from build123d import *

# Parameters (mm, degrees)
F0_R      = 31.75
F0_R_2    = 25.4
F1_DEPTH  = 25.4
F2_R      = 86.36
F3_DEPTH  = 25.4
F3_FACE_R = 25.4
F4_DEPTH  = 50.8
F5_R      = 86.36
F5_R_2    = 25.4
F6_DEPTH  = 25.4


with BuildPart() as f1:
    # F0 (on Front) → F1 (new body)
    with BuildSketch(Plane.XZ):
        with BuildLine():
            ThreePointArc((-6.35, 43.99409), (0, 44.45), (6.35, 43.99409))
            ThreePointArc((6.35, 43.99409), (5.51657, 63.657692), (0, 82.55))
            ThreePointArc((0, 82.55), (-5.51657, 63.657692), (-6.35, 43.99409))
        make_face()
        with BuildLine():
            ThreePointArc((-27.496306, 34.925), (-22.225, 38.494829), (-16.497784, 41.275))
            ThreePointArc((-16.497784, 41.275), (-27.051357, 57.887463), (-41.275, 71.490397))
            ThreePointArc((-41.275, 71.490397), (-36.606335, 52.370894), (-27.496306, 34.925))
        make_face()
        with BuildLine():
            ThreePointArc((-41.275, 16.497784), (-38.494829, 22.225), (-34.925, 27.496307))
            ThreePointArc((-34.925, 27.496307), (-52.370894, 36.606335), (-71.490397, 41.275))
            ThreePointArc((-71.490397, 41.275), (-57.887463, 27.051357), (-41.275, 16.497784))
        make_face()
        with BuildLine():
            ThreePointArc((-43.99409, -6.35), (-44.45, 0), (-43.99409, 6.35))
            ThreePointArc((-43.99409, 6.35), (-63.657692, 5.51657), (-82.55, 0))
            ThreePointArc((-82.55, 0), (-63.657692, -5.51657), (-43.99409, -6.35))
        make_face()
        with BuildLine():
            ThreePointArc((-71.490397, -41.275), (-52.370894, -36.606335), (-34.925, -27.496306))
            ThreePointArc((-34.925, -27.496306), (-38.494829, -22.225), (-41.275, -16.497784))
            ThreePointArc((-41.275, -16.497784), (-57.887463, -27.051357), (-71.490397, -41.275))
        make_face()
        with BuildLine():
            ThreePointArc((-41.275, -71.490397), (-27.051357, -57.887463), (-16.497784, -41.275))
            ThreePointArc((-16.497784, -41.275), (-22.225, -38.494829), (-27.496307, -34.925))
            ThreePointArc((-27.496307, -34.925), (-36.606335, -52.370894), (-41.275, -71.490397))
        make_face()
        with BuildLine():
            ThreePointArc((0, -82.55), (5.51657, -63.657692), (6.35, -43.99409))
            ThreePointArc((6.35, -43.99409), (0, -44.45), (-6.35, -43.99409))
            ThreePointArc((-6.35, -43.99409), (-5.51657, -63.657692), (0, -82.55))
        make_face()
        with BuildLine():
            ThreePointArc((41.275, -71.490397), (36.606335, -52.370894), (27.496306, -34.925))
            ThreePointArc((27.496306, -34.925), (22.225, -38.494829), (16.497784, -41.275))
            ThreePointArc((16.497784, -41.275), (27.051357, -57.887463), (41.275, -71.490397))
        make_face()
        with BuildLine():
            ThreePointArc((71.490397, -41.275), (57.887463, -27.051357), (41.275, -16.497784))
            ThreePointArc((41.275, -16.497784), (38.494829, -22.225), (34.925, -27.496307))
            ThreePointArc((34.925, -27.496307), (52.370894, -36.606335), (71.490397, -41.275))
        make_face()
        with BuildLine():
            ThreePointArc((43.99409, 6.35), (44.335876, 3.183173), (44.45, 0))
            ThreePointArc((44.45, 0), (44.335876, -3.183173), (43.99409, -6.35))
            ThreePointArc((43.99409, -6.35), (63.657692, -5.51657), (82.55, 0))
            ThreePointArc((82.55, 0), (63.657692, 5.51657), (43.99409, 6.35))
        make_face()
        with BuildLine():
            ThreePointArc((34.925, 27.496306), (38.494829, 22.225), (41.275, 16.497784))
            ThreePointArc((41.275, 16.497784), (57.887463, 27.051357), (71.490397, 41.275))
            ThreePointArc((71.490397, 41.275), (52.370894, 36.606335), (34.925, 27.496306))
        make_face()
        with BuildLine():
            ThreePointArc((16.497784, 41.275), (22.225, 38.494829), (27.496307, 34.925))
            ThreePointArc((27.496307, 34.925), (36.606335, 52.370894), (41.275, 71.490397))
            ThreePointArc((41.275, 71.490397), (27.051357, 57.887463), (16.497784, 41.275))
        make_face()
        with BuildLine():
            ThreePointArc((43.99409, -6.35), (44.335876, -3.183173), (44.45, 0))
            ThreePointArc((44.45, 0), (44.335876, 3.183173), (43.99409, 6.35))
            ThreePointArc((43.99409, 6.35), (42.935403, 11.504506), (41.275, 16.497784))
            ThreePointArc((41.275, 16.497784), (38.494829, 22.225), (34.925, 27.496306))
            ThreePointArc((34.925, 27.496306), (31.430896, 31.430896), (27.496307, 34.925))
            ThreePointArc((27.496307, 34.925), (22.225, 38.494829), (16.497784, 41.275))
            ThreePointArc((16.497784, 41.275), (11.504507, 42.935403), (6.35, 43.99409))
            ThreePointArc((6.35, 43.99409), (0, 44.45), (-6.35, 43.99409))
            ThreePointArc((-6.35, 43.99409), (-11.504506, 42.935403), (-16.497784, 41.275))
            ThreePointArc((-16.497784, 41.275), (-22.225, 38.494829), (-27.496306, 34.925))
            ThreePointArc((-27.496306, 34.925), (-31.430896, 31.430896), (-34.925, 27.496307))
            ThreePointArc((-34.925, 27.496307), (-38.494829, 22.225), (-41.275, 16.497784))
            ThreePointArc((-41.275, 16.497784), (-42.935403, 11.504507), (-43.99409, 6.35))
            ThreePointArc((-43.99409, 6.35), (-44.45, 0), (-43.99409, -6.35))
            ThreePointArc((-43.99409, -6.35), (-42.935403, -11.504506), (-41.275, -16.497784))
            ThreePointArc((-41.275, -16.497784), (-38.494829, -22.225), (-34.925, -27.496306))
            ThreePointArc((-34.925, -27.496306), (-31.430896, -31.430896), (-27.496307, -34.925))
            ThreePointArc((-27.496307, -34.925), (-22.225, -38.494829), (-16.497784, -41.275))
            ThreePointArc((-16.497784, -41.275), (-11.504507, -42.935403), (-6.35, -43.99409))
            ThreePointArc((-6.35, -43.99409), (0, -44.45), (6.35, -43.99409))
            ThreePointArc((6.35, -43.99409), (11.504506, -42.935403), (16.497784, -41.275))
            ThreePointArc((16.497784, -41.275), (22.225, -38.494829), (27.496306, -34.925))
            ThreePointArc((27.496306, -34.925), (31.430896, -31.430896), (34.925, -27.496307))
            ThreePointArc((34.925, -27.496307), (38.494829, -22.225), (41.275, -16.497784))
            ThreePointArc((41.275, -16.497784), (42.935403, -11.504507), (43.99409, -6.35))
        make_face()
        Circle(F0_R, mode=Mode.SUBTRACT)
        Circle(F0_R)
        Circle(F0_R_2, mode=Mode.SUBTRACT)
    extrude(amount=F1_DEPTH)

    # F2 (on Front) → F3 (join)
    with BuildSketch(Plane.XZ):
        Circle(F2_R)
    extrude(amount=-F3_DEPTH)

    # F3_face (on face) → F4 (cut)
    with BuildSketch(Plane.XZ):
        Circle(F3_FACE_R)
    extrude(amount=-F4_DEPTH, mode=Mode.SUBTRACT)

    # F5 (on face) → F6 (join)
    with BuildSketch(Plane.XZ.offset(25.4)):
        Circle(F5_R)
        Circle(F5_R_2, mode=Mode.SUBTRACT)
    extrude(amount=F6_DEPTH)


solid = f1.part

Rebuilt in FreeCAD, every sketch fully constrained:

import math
import FreeCAD as App
import Part
import Sketcher
Q = App.Units.Quantity

doc = App.newDocument("Part")
body = doc.addObject("PartDesign::Body", "Body")

# Sketch on XZ plane
sketch1 = doc.addObject("Sketcher::SketchObject", "Sketch")
body.addObject(sketch1)
sketch1.AttachmentSupport = (doc.XZ_Plane, [""])
sketch1.MapMode = "FlatFace"
sketch1.addGeometry([
    Part.ArcOfCircle(Part.Circle(App.Vector(-75.011131, 50.39511, 0), App.Vector(0, 0, 1), 81.61254), math.radians(-4.498433), math.radians(23.203277)),  # 0
    Part.ArcOfCircle(Part.Circle(App.Vector(75.011131, 50.39511, 0), App.Vector(0, 0, 1), 81.61254), math.radians(156.796723), math.radians(184.498433)),  # 1
    Part.ArcOfCircle(Part.Circle(App.Vector(-0.000007, 0.000016, 0), App.Vector(0, 0, 1), 44.449983), math.radians(98.213205), math.radians(111.786789)),  # 2
    Part.ArcOfCircle(Part.Circle(App.Vector(-90.159121, 6.137863, 0), App.Vector(0, 0, 1), 81.612566), math.radians(25.501572), math.radians(53.203272)),  # 3
    Part.ArcOfCircle(Part.Circle(App.Vector(39.764011, 81.14902, 0), App.Vector(0, 0, 1), 81.612562), math.radians(-173.203272), math.radians(-145.501571)),  # 4
    Part.ArcOfCircle(Part.Circle(App.Vector(0.000054, -0.000058, 0), App.Vector(0, 0, 1), 44.450079), math.radians(128.213219), math.radians(141.786773)),  # 5
    Part.ArcOfCircle(Part.Circle(App.Vector(-81.149024, -39.764025, 0), App.Vector(0, 0, 1), 81.612576), math.radians(55.501575), math.radians(83.203271)),  # 6
    Part.ArcOfCircle(Part.Circle(App.Vector(-6.137863, 90.159121, 0), App.Vector(0, 0, 1), 81.612566), math.radians(-143.203272), math.radians(-115.501572)),  # 7
    Part.ArcOfCircle(Part.Circle(App.Vector(-0.000052, 0.000016, 0), App.Vector(0, 0, 1), 44.449946), math.radians(158.213205), math.radians(171.7868)),  # 8
    Part.ArcOfCircle(Part.Circle(App.Vector(-50.39511, -75.011131, 0), App.Vector(0, 0, 1), 81.61254), math.radians(85.501567), math.radians(113.203277)),  # 9
    Part.ArcOfCircle(Part.Circle(App.Vector(-50.39511, 75.011131, 0), App.Vector(0, 0, 1), 81.61254), math.radians(-113.203277), math.radians(-85.501567)),  # 10
    Part.ArcOfCircle(Part.Circle(App.Vector(-0.000016, -0.000007, 0), App.Vector(0, 0, 1), 44.449983), math.radians(-171.786795), math.radians(-158.213211)),  # 11
    Part.ArcOfCircle(Part.Circle(App.Vector(-6.137863, -90.159121, 0), App.Vector(0, 0, 1), 81.612566), math.radians(115.501572), math.radians(143.203272)),  # 12
    Part.ArcOfCircle(Part.Circle(App.Vector(-81.14902, 39.764011, 0), App.Vector(0, 0, 1), 81.612562), math.radians(-83.203272), math.radians(-55.501571)),  # 13
    Part.ArcOfCircle(Part.Circle(App.Vector(0.000058, 0.000054, 0), App.Vector(0, 0, 1), 44.450079), math.radians(-141.786781), math.radians(-128.213227)),  # 14
    Part.ArcOfCircle(Part.Circle(App.Vector(39.764025, -81.149024, 0), App.Vector(0, 0, 1), 81.612576), math.radians(145.501575), math.radians(173.203271)),  # 15
    Part.ArcOfCircle(Part.Circle(App.Vector(-90.159121, -6.137863, 0), App.Vector(0, 0, 1), 81.612566), math.radians(-53.203272), math.radians(-25.501572)),  # 16
    Part.ArcOfCircle(Part.Circle(App.Vector(-0.000016, -0.000052, 0), App.Vector(0, 0, 1), 44.449946), math.radians(-111.786795), math.radians(-98.2132)),  # 17
    Part.ArcOfCircle(Part.Circle(App.Vector(75.011131, -50.39511, 0), App.Vector(0, 0, 1), 81.61254), math.radians(175.501567), math.radians(203.203277)),  # 18
    Part.ArcOfCircle(Part.Circle(App.Vector(-75.011131, -50.39511, 0), App.Vector(0, 0, 1), 81.61254), math.radians(-23.203277), math.radians(4.498433)),  # 19
    Part.ArcOfCircle(Part.Circle(App.Vector(0.000007, -0.000016, 0), App.Vector(0, 0, 1), 44.449983), math.radians(-81.786795), math.radians(-68.213211)),  # 20
    Part.ArcOfCircle(Part.Circle(App.Vector(90.159121, -6.137863, 0), App.Vector(0, 0, 1), 81.612566), math.radians(-154.498428), math.radians(-126.796728)),  # 21
    Part.ArcOfCircle(Part.Circle(App.Vector(-39.764011, -81.14902, 0), App.Vector(0, 0, 1), 81.612562), math.radians(6.796728), math.radians(34.498429)),  # 22
    Part.ArcOfCircle(Part.Circle(App.Vector(-0.000054, 0.000058, 0), App.Vector(0, 0, 1), 44.450079), math.radians(-51.786781), math.radians(-38.213227)),  # 23
    Part.ArcOfCircle(Part.Circle(App.Vector(81.149024, 39.764025, 0), App.Vector(0, 0, 1), 81.612576), math.radians(-124.498425), math.radians(-96.796729)),  # 24
    Part.ArcOfCircle(Part.Circle(App.Vector(6.137863, -90.159121, 0), App.Vector(0, 0, 1), 81.612566), math.radians(36.796728), math.radians(64.498428)),  # 25
    Part.ArcOfCircle(Part.Circle(App.Vector(0.000052, -0.000016, 0), App.Vector(0, 0, 1), 44.449946), math.radians(-21.786795), math.radians(-8.2132)),  # 26
    Part.ArcOfCircle(Part.Circle(App.Vector(50.39511, 75.011131, 0), App.Vector(0, 0, 1), 81.61254), math.radians(-94.498433), math.radians(-66.796723)),  # 27
    Part.ArcOfCircle(Part.Circle(App.Vector(50.39511, -75.011131, 0), App.Vector(0, 0, 1), 81.61254), math.radians(66.796723), math.radians(94.498433)),  # 28
    Part.ArcOfCircle(Part.Circle(App.Vector(0.000016, 0.000007, 0), App.Vector(0, 0, 1), 44.449983), math.radians(8.213205), math.radians(21.786789)),  # 29
    Part.ArcOfCircle(Part.Circle(App.Vector(6.137863, 90.159121, 0), App.Vector(0, 0, 1), 81.612566), math.radians(-64.498428), math.radians(-36.796728)),  # 30
    Part.ArcOfCircle(Part.Circle(App.Vector(81.14902, -39.764011, 0), App.Vector(0, 0, 1), 81.612562), math.radians(96.796728), math.radians(124.498429)),  # 31
    Part.ArcOfCircle(Part.Circle(App.Vector(-0.000058, -0.000054, 0), App.Vector(0, 0, 1), 44.450079), math.radians(38.213219), math.radians(51.786773)),  # 32
    Part.ArcOfCircle(Part.Circle(App.Vector(-39.764025, 81.149024, 0), App.Vector(0, 0, 1), 81.612576), math.radians(-34.498425), math.radians(-6.796729)),  # 33
    Part.ArcOfCircle(Part.Circle(App.Vector(90.159121, 6.137863, 0), App.Vector(0, 0, 1), 81.612566), math.radians(126.796728), math.radians(154.498428)),  # 34
    Part.ArcOfCircle(Part.Circle(App.Vector(0.000016, 0.000052, 0), App.Vector(0, 0, 1), 44.449946), math.radians(68.213205), math.radians(81.7868)),  # 35
    Part.Circle(App.Vector(0, 0, 0), App.Vector(0, 0, 1), 25.4),  # 36
], False)
sketch1.addConstraint([
    Sketcher.Constraint("Coincident", 0, 2, 1, 1),
    Sketcher.Constraint("Coincident", 1, 2, 2, 1),
    Sketcher.Constraint("Coincident", 2, 2, 3, 1),
    Sketcher.Constraint("Coincident", 3, 2, 4, 1),
    Sketcher.Constraint("Coincident", 4, 2, 5, 1),
    Sketcher.Constraint("Coincident", 5, 2, 6, 1),
    Sketcher.Constraint("Coincident", 6, 2, 7, 1),
    Sketcher.Constraint("Coincident", 7, 2, 8, 1),
    Sketcher.Constraint("Coincident", 8, 2, 9, 1),
    Sketcher.Constraint("Coincident", 9, 2, 10, 1),
    Sketcher.Constraint("Coincident", 10, 2, 11, 1),
    Sketcher.Constraint("Coincident", 11, 2, 12, 1),
    Sketcher.Constraint("Coincident", 12, 2, 13, 1),
    Sketcher.Constraint("Coincident", 13, 2, 14, 1),
    Sketcher.Constraint("Coincident", 14, 2, 15, 1),
    Sketcher.Constraint("Coincident", 15, 2, 16, 1),
    Sketcher.Constraint("Coincident", 16, 2, 17, 1),
    Sketcher.Constraint("Coincident", 17, 2, 18, 1),
    Sketcher.Constraint("Coincident", 18, 2, 19, 1),
    Sketcher.Constraint("Coincident", 19, 2, 20, 1),
    Sketcher.Constraint("Coincident", 20, 2, 21, 1),
    Sketcher.Constraint("Coincident", 21, 2, 22, 1),
    Sketcher.Constraint("Coincident", 22, 2, 23, 1),
    Sketcher.Constraint("Coincident", 23, 2, 24, 1),
    Sketcher.Constraint("Coincident", 24, 2, 25, 1),
    Sketcher.Constraint("Coincident", 25, 2, 26, 1),
    Sketcher.Constraint("Coincident", 26, 2, 27, 1),
    Sketcher.Constraint("Coincident", 27, 2, 28, 1),
    Sketcher.Constraint("Coincident", 28, 2, 29, 1),
    Sketcher.Constraint("Coincident", 29, 2, 30, 1),
    Sketcher.Constraint("Coincident", 30, 2, 31, 1),
    Sketcher.Constraint("Coincident", 31, 2, 32, 1),
    Sketcher.Constraint("Coincident", 32, 2, 33, 1),
    Sketcher.Constraint("Coincident", 33, 2, 34, 1),
    Sketcher.Constraint("Coincident", 34, 2, 35, 1),
    Sketcher.Constraint("Coincident", 35, 2, 0, 1),
    Sketcher.Constraint("Coincident", 36, 3, -1, 1),
    Sketcher.Constraint("PointOnObject", 0, 2, -2),
    Sketcher.Constraint("PointOnObject", 9, 2, -1),
    Sketcher.Constraint("PointOnObject", 18, 2, -2),
    Sketcher.Constraint("PointOnObject", 27, 2, -1),
    Sketcher.Constraint("Diameter", 36, Q("2 in")),
    Sketcher.Constraint("DistanceY", -1, 1, 0, 2, Q("3.25 in")),
    Sketcher.Constraint("DistanceX", 1, 2, -1, 1, Q("0.25 in")),
    Sketcher.Constraint("DistanceY", -1, 1, 8, 2, Q("0.25 in")),
    Sketcher.Constraint("DistanceX", 9, 2, -1, 1, Q("3.25 in")),
    Sketcher.Constraint("DistanceY", 10, 2, -1, 1, Q("0.25 in")),
    Sketcher.Constraint("DistanceX", 17, 2, -1, 1, Q("0.25 in")),
    Sketcher.Constraint("DistanceY", 18, 2, -1, 1, Q("3.25 in")),
    Sketcher.Constraint("DistanceX", -1, 1, 19, 2, Q("0.25 in")),
    Sketcher.Constraint("DistanceY", 26, 2, -1, 1, Q("0.25 in")),
    Sketcher.Constraint("DistanceX", -1, 1, 27, 2, Q("3.25 in")),
    Sketcher.Constraint("DistanceY", -1, 1, 28, 2, Q("0.25 in")),
    Sketcher.Constraint("DistanceX", -1, 1, 35, 2, Q("0.25 in")),
    Sketcher.Constraint("DistanceY", -1, 1, 2, 2, Q("1.625 in")),
    Sketcher.Constraint("DistanceX", 3, 2, -1, 1, Q("1.625 in")),
    Sketcher.Constraint("DistanceY", -1, 1, 4, 2, Q("1.375 in")),
    Sketcher.Constraint("DistanceX", 5, 2, -1, 1, Q("1.375 in")),
    Sketcher.Constraint("DistanceY", -1, 1, 6, 2, Q("1.625 in")),
    Sketcher.Constraint("DistanceX", 7, 2, -1, 1, Q("1.625 in")),
    Sketcher.Constraint("DistanceX", 11, 2, -1, 1, Q("1.625 in")),
    Sketcher.Constraint("DistanceY", 12, 2, -1, 1, Q("1.625 in")),
    Sketcher.Constraint("DistanceX", 13, 2, -1, 1, Q("1.375 in")),
    Sketcher.Constraint("DistanceY", 14, 2, -1, 1, Q("1.375 in")),
    Sketcher.Constraint("DistanceX", 15, 2, -1, 1, Q("1.625 in")),
    Sketcher.Constraint("DistanceY", 16, 2, -1, 1, Q("1.625 in")),
    Sketcher.Constraint("DistanceY", 20, 2, -1, 1, Q("1.625 in")),
    Sketcher.Constraint("DistanceX", -1, 1, 21, 2, Q("1.625 in")),
    Sketcher.Constraint("DistanceY", 22, 2, -1, 1, Q("1.375 in")),
    Sketcher.Constraint("DistanceX", -1, 1, 23, 2, Q("1.375 in")),
    Sketcher.Constraint("DistanceY", 24, 2, -1, 1, Q("1.625 in")),
    Sketcher.Constraint("DistanceX", -1, 1, 25, 2, Q("1.625 in")),
    Sketcher.Constraint("DistanceX", -1, 1, 29, 2, Q("1.625 in")),
    Sketcher.Constraint("DistanceY", -1, 1, 30, 2, Q("1.625 in")),
    Sketcher.Constraint("DistanceX", -1, 1, 31, 2, Q("1.375 in")),
    Sketcher.Constraint("DistanceY", -1, 1, 32, 2, Q("1.375 in")),
    Sketcher.Constraint("DistanceX", -1, 1, 33, 2, Q("1.625 in")),
    Sketcher.Constraint("DistanceY", -1, 1, 34, 2, Q("1.625 in")),
    Sketcher.Constraint("Radius", 0, Q("81.61254 mm")),
    Sketcher.Constraint("Radius", 1, Q("81.61254 mm")),
    Sketcher.Constraint("Radius", 5, Q("44.450079 mm")),
    Sketcher.Constraint("Radius", 9, Q("81.61254 mm")),
    Sketcher.Constraint("Radius", 10, Q("81.61254 mm")),
    Sketcher.Constraint("Radius", 14, Q("44.450079 mm")),
    Sketcher.Constraint("Radius", 18, Q("81.61254 mm")),
    Sketcher.Constraint("Radius", 19, Q("81.61254 mm")),
    Sketcher.Constraint("Radius", 23, Q("44.450079 mm")),
    Sketcher.Constraint("Radius", 27, Q("81.61254 mm")),
    Sketcher.Constraint("Radius", 28, Q("81.61254 mm")),
    Sketcher.Constraint("Radius", 32, Q("44.450079 mm")),
    Sketcher.Constraint("Radius", 2, Q("44.449983 mm")),
    Sketcher.Constraint("Radius", 3, Q("81.612566 mm")),
    Sketcher.Constraint("Radius", 4, Q("81.612562 mm")),
    Sketcher.Constraint("Radius", 6, Q("81.612576 mm")),
    Sketcher.Constraint("Radius", 7, Q("81.612566 mm")),
    Sketcher.Constraint("Radius", 8, Q("44.449946 mm")),
    Sketcher.Constraint("Radius", 11, Q("44.449983 mm")),
    Sketcher.Constraint("Radius", 12, Q("81.612566 mm")),
    Sketcher.Constraint("Radius", 13, Q("81.612562 mm")),
    Sketcher.Constraint("Radius", 15, Q("81.612576 mm")),
    Sketcher.Constraint("Radius", 16, Q("81.612566 mm")),
    Sketcher.Constraint("Radius", 17, Q("44.449946 mm")),
    Sketcher.Constraint("Radius", 20, Q("44.449983 mm")),
    Sketcher.Constraint("Radius", 21, Q("81.612566 mm")),
    Sketcher.Constraint("Radius", 22, Q("81.612562 mm")),
    Sketcher.Constraint("Radius", 24, Q("81.612576 mm")),
    Sketcher.Constraint("Radius", 25, Q("81.612566 mm")),
    Sketcher.Constraint("Radius", 26, Q("44.449946 mm")),
    Sketcher.Constraint("Radius", 29, Q("44.449983 mm")),
    Sketcher.Constraint("Radius", 30, Q("81.612566 mm")),
    Sketcher.Constraint("Radius", 31, Q("81.612562 mm")),
    Sketcher.Constraint("Radius", 33, Q("81.612576 mm")),
    Sketcher.Constraint("Radius", 34, Q("81.612566 mm")),
    Sketcher.Constraint("Radius", 35, Q("44.449946 mm")),
    Sketcher.Constraint("DistanceX", 0, 3, -1, 1, Q("75.011131 mm")),
    Sketcher.Constraint("DistanceX", -1, 1, 1, 3, Q("75.011131 mm")),
    Sketcher.Constraint("DistanceX", 3, 3, -1, 1, Q("90.159121 mm")),
    Sketcher.Constraint("DistanceX", -1, 1, 4, 3, Q("39.764011 mm")),
    Sketcher.Constraint("DistanceY", -1, 1, 4, 3, Q("81.14902 mm")),
    Sketcher.Constraint("DistanceY", -1, 1, 7, 3, Q("90.159121 mm")),
    Sketcher.Constraint("DistanceX", 9, 3, -1, 1, Q("50.39511 mm")),
    Sketcher.Constraint("DistanceX", 10, 3, -1, 1, Q("50.39511 mm")),
    Sketcher.Constraint("DistanceY", 12, 3, -1, 1, Q("90.159121 mm")),
    Sketcher.Constraint("DistanceX", 13, 3, -1, 1, Q("81.14902 mm")),
    Sketcher.Constraint("DistanceY", -1, 1, 13, 3, Q("39.764011 mm")),
    Sketcher.Constraint("DistanceX", 16, 3, -1, 1, Q("90.159121 mm")),
    Sketcher.Constraint("DistanceX", -1, 1, 18, 3, Q("75.011131 mm")),
    Sketcher.Constraint("DistanceX", 19, 3, -1, 1, Q("75.011131 mm")),
    Sketcher.Constraint("DistanceX", -1, 1, 21, 3, Q("90.159121 mm")),
    Sketcher.Constraint("DistanceX", 22, 3, -1, 1, Q("39.764011 mm")),
    Sketcher.Constraint("DistanceY", 22, 3, -1, 1, Q("81.14902 mm")),
    Sketcher.Constraint("DistanceY", 25, 3, -1, 1, Q("90.159121 mm")),
    Sketcher.Constraint("DistanceX", -1, 1, 27, 3, Q("50.39511 mm")),
    Sketcher.Constraint("DistanceX", -1, 1, 28, 3, Q("50.39511 mm")),
    Sketcher.Constraint("DistanceY", -1, 1, 30, 3, Q("90.159121 mm")),
    Sketcher.Constraint("DistanceX", -1, 1, 31, 3, Q("81.14902 mm")),
    Sketcher.Constraint("DistanceY", 31, 3, -1, 1, Q("39.764011 mm")),
    Sketcher.Constraint("DistanceX", -1, 1, 34, 3, Q("90.159121 mm")),
    Sketcher.Constraint("DistanceX", 6, 3, -1, 1, Q("81.149024 mm")),
    Sketcher.Constraint("DistanceY", 6, 3, -1, 1, Q("39.764025 mm")),
    Sketcher.Constraint("DistanceX", -1, 1, 15, 3, Q("39.764025 mm")),
    Sketcher.Constraint("DistanceY", 15, 3, -1, 1, Q("81.149024 mm")),
    Sketcher.Constraint("DistanceX", -1, 1, 24, 3, Q("81.149024 mm")),
    Sketcher.Constraint("DistanceY", -1, 1, 24, 3, Q("39.764025 mm")),
    Sketcher.Constraint("DistanceX", 33, 3, -1, 1, Q("39.764025 mm")),
    Sketcher.Constraint("DistanceY", -1, 1, 33, 3, Q("81.149024 mm")),
])
pad1 = doc.addObject("PartDesign::Pad", "Pad")
body.addObject(pad1)
pad1.Profile = sketch1
pad1.Length = Q("1 in")

# Sketch on XZ plane
sketch2 = doc.addObject("Sketcher::SketchObject", "Sketch001")
body.addObject(sketch2)
sketch2.AttachmentSupport = (doc.XZ_Plane, [""])
sketch2.MapMode = "FlatFace"
sketch2.addGeometry(Part.Circle(App.Vector(0, 0, 0), App.Vector(0, 0, 1), 86), False)
sketch2.addConstraint([
    Sketcher.Constraint("Coincident", 0, 3, -1, 1),
    Sketcher.Constraint("Diameter", 0, Q("6.8 in")),
])
pad2 = doc.addObject("PartDesign::Pad", "Pad001")
body.addObject(pad2)
pad2.Profile = sketch2
pad2.Length = Q("1 in")
pad2.Reversed = True

# Sketch on XZ plane
sketch3 = doc.addObject("Sketcher::SketchObject", "Sketch002")
body.addObject(sketch3)
sketch3.AttachmentSupport = (doc.XZ_Plane, [""])
sketch3.MapMode = "FlatFace"
sketch3.addGeometry(Part.Circle(App.Vector(0, 0, 0), App.Vector(0, 0, 1), 25), False)
sketch3.addConstraint([
    Sketcher.Constraint("Coincident", 0, 3, -1, 1),
    Sketcher.Constraint("Diameter", 0, Q("2 in")),
])
pocket1 = doc.addObject("PartDesign::Pocket", "Pocket")
body.addObject(pocket1)
pocket1.Profile = sketch3
pocket1.Length = Q("2 in")

# Sketch on XZ plane
sketch4 = doc.addObject("Sketcher::SketchObject", "Sketch003")
body.addObject(sketch4)
sketch4.AttachmentSupport = (doc.XZ_Plane, [""])
sketch4.MapMode = "FlatFace"
sketch4.AttachmentOffset = App.Placement(App.Vector(0, 0, 1 * 25.4), App.Rotation())
sketch4.addGeometry([
    Part.Circle(App.Vector(0, 0, 0), App.Vector(0, 0, 1), 86),
    Part.Circle(App.Vector(0, 0, 0), App.Vector(0, 0, 1), 25),
], False)
sketch4.addConstraint([
    Sketcher.Constraint("Coincident", 0, 3, -1, 1),
    Sketcher.Constraint("Coincident", 1, 3, -1, 1),
    Sketcher.Constraint("Diameter", 1, Q("2 in")),
    Sketcher.Constraint("Diameter", 0, Q("6.8 in")),
])
pad3 = doc.addObject("PartDesign::Pad", "Pad002")
body.addObject(pad3)
pad3.Profile = sketch4
pad3.Length = Q("1 in")

doc.recompute()
